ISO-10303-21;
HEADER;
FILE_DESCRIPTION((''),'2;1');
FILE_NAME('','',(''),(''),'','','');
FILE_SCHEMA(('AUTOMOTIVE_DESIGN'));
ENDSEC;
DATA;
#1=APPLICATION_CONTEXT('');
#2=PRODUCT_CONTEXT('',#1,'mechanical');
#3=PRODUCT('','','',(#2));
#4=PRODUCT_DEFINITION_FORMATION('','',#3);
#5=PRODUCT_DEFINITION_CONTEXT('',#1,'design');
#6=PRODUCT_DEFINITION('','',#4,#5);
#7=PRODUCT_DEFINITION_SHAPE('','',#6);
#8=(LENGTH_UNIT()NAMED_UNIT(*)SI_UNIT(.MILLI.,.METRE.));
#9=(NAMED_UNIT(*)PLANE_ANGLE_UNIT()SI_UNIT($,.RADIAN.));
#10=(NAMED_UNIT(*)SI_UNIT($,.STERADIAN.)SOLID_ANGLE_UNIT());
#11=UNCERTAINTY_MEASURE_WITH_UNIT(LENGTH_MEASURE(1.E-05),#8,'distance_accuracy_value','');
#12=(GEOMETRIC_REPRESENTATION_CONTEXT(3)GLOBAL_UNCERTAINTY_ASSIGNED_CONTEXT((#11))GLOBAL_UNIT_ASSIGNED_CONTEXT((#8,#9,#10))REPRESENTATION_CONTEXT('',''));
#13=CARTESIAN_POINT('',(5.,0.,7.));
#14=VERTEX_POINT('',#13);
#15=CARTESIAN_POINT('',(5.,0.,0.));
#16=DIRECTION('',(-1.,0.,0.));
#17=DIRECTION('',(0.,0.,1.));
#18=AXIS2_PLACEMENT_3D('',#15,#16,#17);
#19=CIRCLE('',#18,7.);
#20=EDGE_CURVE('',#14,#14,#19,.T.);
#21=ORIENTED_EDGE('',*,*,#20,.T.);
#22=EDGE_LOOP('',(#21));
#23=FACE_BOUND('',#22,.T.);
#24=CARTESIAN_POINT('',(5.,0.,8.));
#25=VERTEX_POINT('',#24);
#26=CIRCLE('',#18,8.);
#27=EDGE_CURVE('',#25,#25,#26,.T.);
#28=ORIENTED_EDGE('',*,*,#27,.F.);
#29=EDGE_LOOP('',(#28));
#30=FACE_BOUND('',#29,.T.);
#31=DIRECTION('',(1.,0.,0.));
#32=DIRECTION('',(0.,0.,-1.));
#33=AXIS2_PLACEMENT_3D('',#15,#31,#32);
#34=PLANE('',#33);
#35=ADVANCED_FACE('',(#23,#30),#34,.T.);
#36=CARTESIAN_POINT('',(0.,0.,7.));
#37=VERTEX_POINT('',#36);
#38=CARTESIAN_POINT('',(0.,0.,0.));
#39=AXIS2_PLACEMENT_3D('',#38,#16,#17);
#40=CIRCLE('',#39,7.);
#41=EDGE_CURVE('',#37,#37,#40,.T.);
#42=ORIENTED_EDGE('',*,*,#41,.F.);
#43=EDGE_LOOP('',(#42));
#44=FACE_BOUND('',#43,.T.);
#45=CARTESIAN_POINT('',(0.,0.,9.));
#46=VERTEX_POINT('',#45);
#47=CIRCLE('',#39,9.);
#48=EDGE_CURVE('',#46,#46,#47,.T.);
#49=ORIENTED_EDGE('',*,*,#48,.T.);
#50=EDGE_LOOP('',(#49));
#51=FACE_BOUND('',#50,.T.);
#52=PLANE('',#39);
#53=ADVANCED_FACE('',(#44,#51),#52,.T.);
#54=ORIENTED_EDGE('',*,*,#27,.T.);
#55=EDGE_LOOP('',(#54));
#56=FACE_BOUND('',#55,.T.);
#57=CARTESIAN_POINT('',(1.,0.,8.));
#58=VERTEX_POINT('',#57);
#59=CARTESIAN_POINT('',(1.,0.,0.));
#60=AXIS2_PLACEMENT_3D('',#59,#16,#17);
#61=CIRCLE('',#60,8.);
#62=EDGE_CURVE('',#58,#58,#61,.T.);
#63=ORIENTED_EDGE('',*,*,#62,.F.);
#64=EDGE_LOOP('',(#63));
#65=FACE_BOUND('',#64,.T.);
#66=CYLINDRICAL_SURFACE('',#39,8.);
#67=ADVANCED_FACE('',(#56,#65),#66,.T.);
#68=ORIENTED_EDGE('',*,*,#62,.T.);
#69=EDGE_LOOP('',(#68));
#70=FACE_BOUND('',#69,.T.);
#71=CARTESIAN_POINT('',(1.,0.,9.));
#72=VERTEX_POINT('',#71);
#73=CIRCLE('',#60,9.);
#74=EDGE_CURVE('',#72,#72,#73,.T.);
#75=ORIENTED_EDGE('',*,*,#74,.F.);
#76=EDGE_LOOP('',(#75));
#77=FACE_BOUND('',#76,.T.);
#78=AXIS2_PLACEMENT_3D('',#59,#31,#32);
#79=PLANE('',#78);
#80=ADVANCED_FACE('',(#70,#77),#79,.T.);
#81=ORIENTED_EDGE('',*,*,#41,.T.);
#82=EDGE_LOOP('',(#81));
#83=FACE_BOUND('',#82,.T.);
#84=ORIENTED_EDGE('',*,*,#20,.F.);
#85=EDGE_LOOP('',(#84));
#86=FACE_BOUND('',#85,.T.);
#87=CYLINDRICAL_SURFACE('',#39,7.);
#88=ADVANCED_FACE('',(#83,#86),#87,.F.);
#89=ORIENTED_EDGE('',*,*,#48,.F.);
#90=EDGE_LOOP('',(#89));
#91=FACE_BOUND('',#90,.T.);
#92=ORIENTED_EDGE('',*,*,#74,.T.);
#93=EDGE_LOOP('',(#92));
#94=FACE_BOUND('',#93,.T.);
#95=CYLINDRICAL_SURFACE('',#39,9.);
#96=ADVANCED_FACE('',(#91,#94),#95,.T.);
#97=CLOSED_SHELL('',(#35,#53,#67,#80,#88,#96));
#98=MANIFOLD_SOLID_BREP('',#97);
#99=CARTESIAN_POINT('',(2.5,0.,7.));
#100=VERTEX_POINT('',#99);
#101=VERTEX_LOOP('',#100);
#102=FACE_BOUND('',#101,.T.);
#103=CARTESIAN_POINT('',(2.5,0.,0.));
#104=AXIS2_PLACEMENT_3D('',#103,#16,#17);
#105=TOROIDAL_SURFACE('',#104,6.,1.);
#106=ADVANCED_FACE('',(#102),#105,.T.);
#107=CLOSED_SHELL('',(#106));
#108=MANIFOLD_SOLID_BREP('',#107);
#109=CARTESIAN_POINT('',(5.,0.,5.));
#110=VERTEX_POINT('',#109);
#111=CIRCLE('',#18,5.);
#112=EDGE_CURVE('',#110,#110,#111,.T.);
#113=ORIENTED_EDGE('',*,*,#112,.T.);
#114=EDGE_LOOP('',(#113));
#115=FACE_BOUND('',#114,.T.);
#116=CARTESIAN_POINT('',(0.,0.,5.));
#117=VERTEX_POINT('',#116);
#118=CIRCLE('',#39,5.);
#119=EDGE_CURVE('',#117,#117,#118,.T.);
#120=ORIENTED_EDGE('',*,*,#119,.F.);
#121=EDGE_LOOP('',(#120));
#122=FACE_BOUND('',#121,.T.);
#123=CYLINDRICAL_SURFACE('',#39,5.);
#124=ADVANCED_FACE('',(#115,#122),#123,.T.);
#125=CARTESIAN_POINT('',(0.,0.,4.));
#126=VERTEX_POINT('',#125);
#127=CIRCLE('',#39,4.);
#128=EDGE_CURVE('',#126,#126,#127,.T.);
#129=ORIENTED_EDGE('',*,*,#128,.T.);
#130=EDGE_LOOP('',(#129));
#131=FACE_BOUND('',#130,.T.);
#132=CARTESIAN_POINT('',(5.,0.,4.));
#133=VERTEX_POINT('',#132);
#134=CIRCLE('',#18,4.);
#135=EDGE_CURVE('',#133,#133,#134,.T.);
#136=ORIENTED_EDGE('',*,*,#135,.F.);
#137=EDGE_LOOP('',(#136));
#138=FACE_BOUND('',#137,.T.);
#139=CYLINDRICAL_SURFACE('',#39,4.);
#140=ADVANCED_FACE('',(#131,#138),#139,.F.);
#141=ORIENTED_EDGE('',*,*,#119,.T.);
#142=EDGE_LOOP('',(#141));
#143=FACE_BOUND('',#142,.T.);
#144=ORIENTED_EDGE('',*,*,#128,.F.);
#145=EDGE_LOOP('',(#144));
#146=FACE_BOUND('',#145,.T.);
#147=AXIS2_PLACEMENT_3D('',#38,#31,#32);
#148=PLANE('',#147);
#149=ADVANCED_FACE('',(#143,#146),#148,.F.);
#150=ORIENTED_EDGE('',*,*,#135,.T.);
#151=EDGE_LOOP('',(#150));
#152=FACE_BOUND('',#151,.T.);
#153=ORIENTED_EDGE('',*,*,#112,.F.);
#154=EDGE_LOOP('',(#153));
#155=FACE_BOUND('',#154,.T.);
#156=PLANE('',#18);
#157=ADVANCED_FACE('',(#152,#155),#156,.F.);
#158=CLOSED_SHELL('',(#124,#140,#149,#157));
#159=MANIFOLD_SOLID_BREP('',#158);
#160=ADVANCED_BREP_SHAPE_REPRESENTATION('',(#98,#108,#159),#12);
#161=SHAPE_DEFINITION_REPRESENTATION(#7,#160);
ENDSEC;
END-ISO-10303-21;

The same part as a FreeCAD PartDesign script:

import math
import FreeCAD as App
import Part
import Sketcher


def add_polygon(sketch, points):
    """Adds a closed chain of lines whose ends are joined by coincident constraints."""
    first, n = sketch.GeometryCount, len(points)
    for a, b in zip(points, points[1:] + points[:1]):
        sketch.addGeometry(Part.LineSegment(App.Vector(*a, 0), App.Vector(*b, 0)), False)
    for i in range(n):
        sketch.addConstraint(Sketcher.Constraint("Coincident", first + i, 2, first + (i + 1) % n, 1))

doc = App.newDocument("Part")
body = doc.addObject("PartDesign::Body", "Body")
body.AllowCompound = True

# Sketch on XY plane
sketch1 = body.newObject("Sketcher::SketchObject", "Sketch")
sketch1.AttachmentSupport = (doc.getObject("XY_Plane"), [""])
sketch1.MapMode = "FlatFace"
add_polygon(sketch1, [(5, 7), (5, 8), (1, 8), (1, 9), (0, 9), (0, 7), (2.5, 7)])  # lines 0-6
sketch1.addGeometry(Part.ArcOfCircle(Part.Circle(App.Vector(2.5, 6, 0), App.Vector(0, 0, 1), 1), math.radians(90), math.radians(270)), False)  # 7
sketch1.addGeometry(Part.ArcOfCircle(Part.Circle(App.Vector(2.5, 6, 0), App.Vector(0, 0, 1), 1), math.radians(-90), math.radians(90)), False)  # 8
add_polygon(sketch1, [(0, 5), (0, 4), (5, 4), (5, 5), (2.5, 5)])  # lines 9-13
sketch1.addConstraint([
    Sketcher.Constraint("Tangent", 7, 1, 8, 2),
    Sketcher.Constraint("Coincident", 8, 1, 7, 2),
    Sketcher.Constraint("Vertical", 0),
    Sketcher.Constraint("Horizontal", 1),
    Sketcher.Constraint("Vertical", 2),
    Sketcher.Constraint("Horizontal", 3),
    Sketcher.Constraint("Vertical", 4),
    Sketcher.Constraint("Horizontal", 5),
    Sketcher.Constraint("Horizontal", 6),
    Sketcher.Constraint("Vertical", 9),
    Sketcher.Constraint("Horizontal", 10),
    Sketcher.Constraint("Vertical", 11),
    Sketcher.Constraint("Horizontal", 12),
    Sketcher.Constraint("Horizontal", 13),
    Sketcher.Constraint("Coincident", 7, 1, 5, 2),
    Sketcher.Constraint("Coincident", 12, 2, 8, 1),
    Sketcher.Constraint("PointOnObject", 3, 2, -2),
    Sketcher.Constraint("PointOnObject", 9, 2, -2),
    Sketcher.Constraint("Vertical", 8, 3, 5, 2),
    Sketcher.Constraint("Vertical", 7, 1, 8, 1),
    Sketcher.Constraint("Vertical", 6, 2, 10, 2),
    Sketcher.Constraint("Equal", 5, 6),
    Sketcher.Constraint("Equal", 3, 0),
    Sketcher.Constraint("Equal", 0, 2),
    Sketcher.Constraint("Equal", 2, 9),
    Sketcher.Constraint("Radius", 7, 1.0),
    Sketcher.Constraint("DistanceX", 1, 2, 1, 1, 4.0),
    Sketcher.Constraint("DistanceX", 3, 2, 3, 1, 1.0),
    Sketcher.Constraint("DistanceY", -1, 1, 7, 3, 6.0),
])
revolution = body.newObject("PartDesign::Revolution", "Revolution")
revolution.Profile = sketch1
revolution.ReferenceAxis = (sketch1, ["H_Axis"])
revolution.Angle = 360

doc.recompute()
